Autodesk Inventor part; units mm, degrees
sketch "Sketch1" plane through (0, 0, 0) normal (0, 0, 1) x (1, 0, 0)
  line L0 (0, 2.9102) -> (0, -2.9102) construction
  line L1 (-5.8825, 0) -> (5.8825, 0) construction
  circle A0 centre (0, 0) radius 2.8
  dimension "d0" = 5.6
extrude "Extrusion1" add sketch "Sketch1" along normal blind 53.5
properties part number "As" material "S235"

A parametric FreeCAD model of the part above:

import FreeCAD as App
import Part
import Sketcher
from FreeCAD import Vector
Q = App.Units.Quantity

doc = App.newDocument("Part")
params = doc.addObject("Spreadsheet::Sheet", "Params")
for row, (alias, value) in enumerate([
    ("sketch1_diameter", "5.6 mm"),
    ("pad1_length", "53.5 mm"),
], start=1):
    params.set(f"A{row}", alias)
    params.set(f"B{row}", "=" + value)
    params.setAlias(f"B{row}", alias)

body = doc.addObject("PartDesign::Body", "Body")

# Sketch on XY plane
sketch1 = body.newObject("Sketcher::SketchObject", "Sketch")
sketch1.AttachmentSupport = (doc.getObject("XY_Plane"), [""])
sketch1.MapMode = "FlatFace"
sketch1.addGeometry(Part.Circle(Vector(0, 0, 0), Vector(0, 0, 1), 2.8), False)
sketch1.addConstraint(Sketcher.Constraint("Coincident", 0, 3, -1, 1))
sketch1.addConstraint(Sketcher.Constraint("Diameter", 0, Q("5.6 mm")))
sketch1.setExpression("Constraints[1]", "Params.sketch1_diameter")
pad1 = body.newObject("PartDesign::Pad", "Pad")
pad1.Profile = sketch1
pad1.setExpression("Length", "Params.pad1_length")

doc.recompute()
